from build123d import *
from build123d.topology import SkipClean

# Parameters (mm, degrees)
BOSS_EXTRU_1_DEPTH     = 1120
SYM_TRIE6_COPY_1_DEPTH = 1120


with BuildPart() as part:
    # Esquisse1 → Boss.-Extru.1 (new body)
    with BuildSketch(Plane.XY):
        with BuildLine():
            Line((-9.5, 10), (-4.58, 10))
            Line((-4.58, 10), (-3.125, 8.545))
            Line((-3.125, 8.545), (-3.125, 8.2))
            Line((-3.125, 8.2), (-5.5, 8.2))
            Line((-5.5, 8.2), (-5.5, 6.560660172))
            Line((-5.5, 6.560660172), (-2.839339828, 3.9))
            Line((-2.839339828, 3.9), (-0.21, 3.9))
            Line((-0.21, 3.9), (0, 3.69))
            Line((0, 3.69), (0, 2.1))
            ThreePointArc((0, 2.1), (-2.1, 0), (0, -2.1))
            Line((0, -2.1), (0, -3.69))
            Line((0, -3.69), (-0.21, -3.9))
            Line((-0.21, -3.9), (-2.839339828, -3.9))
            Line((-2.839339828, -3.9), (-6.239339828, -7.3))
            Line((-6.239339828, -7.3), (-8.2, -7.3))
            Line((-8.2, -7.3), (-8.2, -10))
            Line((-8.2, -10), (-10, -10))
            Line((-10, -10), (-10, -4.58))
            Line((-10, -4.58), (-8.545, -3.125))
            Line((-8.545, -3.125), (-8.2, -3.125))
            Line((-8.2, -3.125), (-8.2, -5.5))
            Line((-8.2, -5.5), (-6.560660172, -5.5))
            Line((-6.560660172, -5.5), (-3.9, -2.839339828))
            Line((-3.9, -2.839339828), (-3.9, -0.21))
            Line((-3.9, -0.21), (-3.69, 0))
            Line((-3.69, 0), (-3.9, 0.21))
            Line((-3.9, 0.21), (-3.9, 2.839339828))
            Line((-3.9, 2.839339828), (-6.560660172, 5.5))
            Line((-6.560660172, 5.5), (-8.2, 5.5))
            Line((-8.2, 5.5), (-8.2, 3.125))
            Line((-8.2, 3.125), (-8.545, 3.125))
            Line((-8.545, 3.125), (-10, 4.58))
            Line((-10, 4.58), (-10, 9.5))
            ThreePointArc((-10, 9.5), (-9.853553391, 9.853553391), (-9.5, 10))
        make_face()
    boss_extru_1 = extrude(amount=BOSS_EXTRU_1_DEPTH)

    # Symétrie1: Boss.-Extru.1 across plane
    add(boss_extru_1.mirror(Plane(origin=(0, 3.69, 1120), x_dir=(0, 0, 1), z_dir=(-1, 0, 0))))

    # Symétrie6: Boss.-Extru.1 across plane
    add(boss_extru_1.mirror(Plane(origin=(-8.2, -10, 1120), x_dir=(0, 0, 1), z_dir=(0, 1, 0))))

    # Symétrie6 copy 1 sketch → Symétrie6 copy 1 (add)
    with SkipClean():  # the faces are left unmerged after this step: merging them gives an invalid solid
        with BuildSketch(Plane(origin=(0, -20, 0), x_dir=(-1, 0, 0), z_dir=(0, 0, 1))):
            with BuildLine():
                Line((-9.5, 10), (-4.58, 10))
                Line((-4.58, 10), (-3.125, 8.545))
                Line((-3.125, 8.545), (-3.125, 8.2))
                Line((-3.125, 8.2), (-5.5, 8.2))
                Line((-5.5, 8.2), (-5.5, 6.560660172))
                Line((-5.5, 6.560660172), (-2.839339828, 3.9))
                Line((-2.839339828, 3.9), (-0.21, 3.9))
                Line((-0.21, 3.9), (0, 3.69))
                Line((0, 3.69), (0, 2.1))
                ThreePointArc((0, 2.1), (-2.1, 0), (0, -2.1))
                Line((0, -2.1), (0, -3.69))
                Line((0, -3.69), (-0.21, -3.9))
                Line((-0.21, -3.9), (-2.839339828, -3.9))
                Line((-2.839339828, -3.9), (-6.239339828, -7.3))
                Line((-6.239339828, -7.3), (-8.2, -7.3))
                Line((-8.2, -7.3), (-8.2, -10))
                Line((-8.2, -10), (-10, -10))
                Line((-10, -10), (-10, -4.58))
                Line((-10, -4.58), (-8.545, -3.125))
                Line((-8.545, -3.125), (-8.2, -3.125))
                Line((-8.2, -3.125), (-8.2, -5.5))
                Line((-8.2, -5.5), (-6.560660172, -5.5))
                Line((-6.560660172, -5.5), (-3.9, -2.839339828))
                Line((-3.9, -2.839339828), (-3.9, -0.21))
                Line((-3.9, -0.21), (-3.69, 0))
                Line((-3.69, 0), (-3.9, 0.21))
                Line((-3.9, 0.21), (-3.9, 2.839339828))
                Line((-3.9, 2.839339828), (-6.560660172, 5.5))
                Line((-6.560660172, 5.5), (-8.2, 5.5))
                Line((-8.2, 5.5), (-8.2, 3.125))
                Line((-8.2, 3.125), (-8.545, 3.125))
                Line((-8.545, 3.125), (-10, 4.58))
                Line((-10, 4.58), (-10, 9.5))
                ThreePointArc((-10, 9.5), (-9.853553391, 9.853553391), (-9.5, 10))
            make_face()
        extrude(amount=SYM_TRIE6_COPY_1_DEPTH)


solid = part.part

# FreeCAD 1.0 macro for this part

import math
import FreeCAD as App
import Part
import Sketcher
from FreeCAD import Vector

doc = App.newDocument("Part")
body = doc.addObject("PartDesign::Body", "Body")

sketch1 = body.newObject("Sketcher::SketchObject", "Sketch")
sketch1.AttachmentSupport = (doc.getObject("XY_Plane"), [""])
sketch1.MapMode = "FlatFace"
sketch1.addGeometry([
    Part.LineSegment(Vector(-4.58, 10, 0), Vector(-9.5, 10, 0)),
    Part.ArcOfCircle(Part.Circle(Vector(-9.5, 9.5, 0), Vector(0, 0, 1), 0.5), math.radians(90), math.radians(180)),
    Part.LineSegment(Vector(-10, 9.5, 0), Vector(-10, 4.58, 0)),
    Part.LineSegment(Vector(-10, 4.58, 0), Vector(-8.545, 3.125, 0)),
    Part.LineSegment(Vector(-8.545, 3.125, 0), Vector(-8.2, 3.125, 0)),
    Part.LineSegment(Vector(-8.2, 3.125, 0), Vector(-8.2, 5.5, 0)),
    Part.LineSegment(Vector(-8.2, 5.5, 0), Vector(-6.56066, 5.5, 0)),
    Part.LineSegment(Vector(-6.56066, 5.5, 0), Vector(-3.9, 2.83934, 0)),
    Part.LineSegment(Vector(-3.9, 2.83934, 0), Vector(-3.9, 0.21, 0)),
    Part.LineSegment(Vector(-3.9, 0.21, 0), Vector(-3.69, 0, 0)),
    Part.LineSegment(Vector(-3.69, 0, 0), Vector(-3.9, -0.21, 0)),
    Part.LineSegment(Vector(-3.9, -0.21, 0), Vector(-3.9, -2.83934, 0)),
    Part.LineSegment(Vector(-3.9, -2.83934, 0), Vector(-6.56066, -5.5, 0)),
    Part.LineSegment(Vector(-6.56066, -5.5, 0), Vector(-8.2, -5.5, 0)),
    Part.LineSegment(Vector(-8.2, -5.5, 0), Vector(-8.2, -3.125, 0)),
    Part.LineSegment(Vector(-8.2, -3.125, 0), Vector(-8.545, -3.125, 0)),
    Part.LineSegment(Vector(-8.545, -3.125, 0), Vector(-10, -4.58, 0)),
    Part.LineSegment(Vector(-10, -4.58, 0), Vector(-10, -10, 0)),
    Part.LineSegment(Vector(-10, -10, 0), Vector(-8.2, -10, 0)),
    Part.LineSegment(Vector(-8.2, -10, 0), Vector(-8.2, -7.3, 0)),
    Part.LineSegment(Vector(-8.2, -7.3, 0), Vector(-6.23934, -7.3, 0)),
    Part.LineSegment(Vector(-6.23934, -7.3, 0), Vector(-2.83934, -3.9, 0)),
    Part.LineSegment(Vector(-2.83934, -3.9, 0), Vector(-0.21, -3.9, 0)),
    Part.LineSegment(Vector(-0.21, -3.9, 0), Vector(0, -3.69, 0)),
    Part.LineSegment(Vector(0, -3.69, 0), Vector(0, -2.1, 0)),
    Part.ArcOfCircle(Part.Circle(Vector(0, 0, 0), Vector(0, 0, 1), 2.1), math.radians(90), math.radians(270)),
    Part.LineSegment(Vector(0, 2.1, 0), Vector(0, 3.69, 0)),
    Part.LineSegment(Vector(0, 3.69, 0), Vector(-0.21, 3.9, 0)),
    Part.LineSegment(Vector(-0.21, 3.9, 0), Vector(-2.83934, 3.9, 0)),
    Part.LineSegment(Vector(-2.83934, 3.9, 0), Vector(-5.5, 6.56066, 0)),
    Part.LineSegment(Vector(-5.5, 6.56066, 0), Vector(-5.5, 8.2, 0)),
    Part.LineSegment(Vector(-5.5, 8.2, 0), Vector(-3.125, 8.2, 0)),
    Part.LineSegment(Vector(-3.125, 8.2, 0), Vector(-3.125, 8.545, 0)),
    Part.LineSegment(Vector(-3.125, 8.545, 0), Vector(-4.58, 10, 0)),
], False)
sketch1.addConstraint([
    Sketcher.Constraint("Tangent", 0, 2, 1, 1),
    Sketcher.Constraint("Tangent", 1, 2, 2, 1),
    Sketcher.Constraint("Coincident", 2, 2, 3, 1),
    Sketcher.Constraint("Coincident", 3, 2, 4, 1),
    Sketcher.Constraint("Coincident", 4, 2, 5, 1),
    Sketcher.Constraint("Coincident", 5, 2, 6, 1),
    Sketcher.Constraint("Coincident", 6, 2, 7, 1),
    Sketcher.Constraint("Coincident", 7, 2, 8, 1),
    Sketcher.Constraint("Coincident", 8, 2, 9, 1),
    Sketcher.Constraint("Coincident", 9, 2, 10, 1),
    Sketcher.Constraint("Coincident", 10, 2, 11, 1),
    Sketcher.Constraint("Coincident", 11, 2, 12, 1),
    Sketcher.Constraint("Coincident", 12, 2, 13, 1),
    Sketcher.Constraint("Coincident", 13, 2, 14, 1),
    Sketcher.Constraint("Coincident", 14, 2, 15, 1),
    Sketcher.Constraint("Coincident", 15, 2, 16, 1),
    Sketcher.Constraint("Coincident", 16, 2, 17, 1),
    Sketcher.Constraint("Coincident", 17, 2, 18, 1),
    Sketcher.Constraint("Coincident", 18, 2, 19, 1),
    Sketcher.Constraint("Coincident", 19, 2, 20, 1),
    Sketcher.Constraint("Coincident", 20, 2, 21, 1),
    Sketcher.Constraint("Coincident", 21, 2, 22, 1),
    Sketcher.Constraint("Coincident", 22, 2, 23, 1),
    Sketcher.Constraint("Coincident", 23, 2, 24, 1),
    Sketcher.Constraint("Coincident", 24, 2, 25, 2),
    Sketcher.Constraint("Coincident", 25, 1, 26, 1),
    Sketcher.Constraint("Coincident", 26, 2, 27, 1),
    Sketcher.Constraint("Coincident", 27, 2, 28, 1),
    Sketcher.Constraint("Coincident", 28, 2, 29, 1),
    Sketcher.Constraint("Coincident", 29, 2, 30, 1),
    Sketcher.Constraint("Coincident", 30, 2, 31, 1),
    Sketcher.Constraint("Coincident", 31, 2, 32, 1),
    Sketcher.Constraint("Coincident", 32, 2, 33, 1),
    Sketcher.Constraint("Coincident", 33, 2, 0, 1),
    Sketcher.Constraint("Horizontal", 0),
    Sketcher.Constraint("Vertical", 2),
    Sketcher.Constraint("Horizontal", 4),
    Sketcher.Constraint("Vertical", 5),
    Sketcher.Constraint("Horizontal", 6),
    Sketcher.Constraint("Vertical", 8),
    Sketcher.Constraint("Vertical", 11),
    Sketcher.Constraint("Horizontal", 13),
    Sketcher.Constraint("Vertical", 14),
    Sketcher.Constraint("Horizontal", 15),
    Sketcher.Constraint("Vertical", 17),
    Sketcher.Constraint("Horizontal", 18),
    Sketcher.Constraint("Vertical", 19),
    Sketcher.Constraint("Horizontal", 20),
    Sketcher.Constraint("Horizontal", 22),
    Sketcher.Constraint("Vertical", 24),
    Sketcher.Constraint("Vertical", 26),
    Sketcher.Constraint("Horizontal", 28),
    Sketcher.Constraint("Vertical", 30),
    Sketcher.Constraint("Horizontal", 31),
    Sketcher.Constraint("Vertical", 32),
    Sketcher.Constraint("Coincident", 25, 3, -1, 1),
    Sketcher.Constraint("Symmetric", 23, 2, 26, 2, -1, 1),
    Sketcher.Constraint("Symmetric", 8, 2, 10, 2, -1),
    Sketcher.Constraint("Symmetric", 6, 2, 12, 2, -1),
    Sketcher.Constraint("Symmetric", 4, 2, 14, 2, -1),
    Sketcher.Constraint("Symmetric", 2, 2, 16, 2, -1),
    Sketcher.Constraint("Symmetric", 22, 2, 27, 2, -1),
    Sketcher.Constraint("PointOnObject", 9, 2, -1),
    Sketcher.Constraint("PointOnObject", 23, 2, -2),
    Sketcher.Constraint("Parallel", 3, 7),
    Sketcher.Constraint("Parallel", 7, 9),
    Sketcher.Constraint("Perpendicular", 9, 10),
    Sketcher.Constraint("Parallel", 10, 12),
    Sketcher.Constraint("Parallel", 12, 16),
    Sketcher.Constraint("Parallel", 16, 21),
    Sketcher.Constraint("Parallel", 21, 23),
    Sketcher.Constraint("Parallel", 27, 29),
    Sketcher.Constraint("Parallel", 29, 33),
    Sketcher.Constraint("Vertical", 14, 2, 18, 2),
    Sketcher.Constraint("Vertical", 21, 2, 28, 2),
    Sketcher.Constraint("Equal", 0, 2),
    Sketcher.Constraint("Equal", 31, 5),
    Sketcher.Constraint("Equal", 28, 8),
    Sketcher.Constraint("Equal", 13, 30),
    Sketcher.Constraint("Equal", 15, 32),
    Sketcher.Constraint("Equal", 10, 23),
    Sketcher.Constraint("Equal", 12, 29),
    Sketcher.Constraint("Equal", 16, 33),
    Sketcher.Constraint("Radius", 1, 0.5),
    Sketcher.Constraint("Radius", 25, 2.1),
    Sketcher.Constraint("DistanceX", 18, 1, 18, 2, 1.8),
    Sketcher.Constraint("DistanceY", 19, 1, 19, 2, 2.7),
    Sketcher.Constraint("DistanceY", -1, 1, 0, 2, 10.0),
    Sketcher.Constraint("DistanceY", 17, 2, -1, 1, 10.0),
    Sketcher.Constraint("DistanceY", 5, 2, 1, 3, 4.0),
    Sketcher.Constraint("DistanceX", 0, 2, 0, 1, 4.92),
    Sketcher.Constraint("DistanceY", 24, 1, 24, 2, 1.59),
    Sketcher.Constraint("DistanceX", 7, 2, -1, 1, 3.9),
    Sketcher.Constraint("DistanceX", 4, 1, 4, 2, 0.345),
    Sketcher.Constraint("DistanceX", 6, 1, 6, 2, 1.63934),
])
pad1 = body.newObject("PartDesign::Pad", "Pad")
pad1.Profile = sketch1
pad1.Length = 1120
doc.recompute()

mirrored = body.newObject("PartDesign::Mirrored", "Mirrored")
mirrored.Originals = [pad1]
mirrored.MirrorPlane = (doc.getObject("YZ_Plane"), [""])
body.Tip = mirrored
doc.recompute()

datumplane = body.newObject("PartDesign::Plane", "DatumPlane")
datumplane.AttachmentSupport = (doc.getObject("XZ_Plane"), [""])
datumplane.MapMode = "FlatFace"
datumplane.AttachmentOffset = App.Placement(Vector(0, 0, 10), App.Rotation())
mirrored2 = body.newObject("PartDesign::Mirrored", "Mirrored001")
mirrored2.Originals = [pad1]
mirrored2.MirrorPlane = (datumplane, [""])
body.Tip = mirrored2

sketch2 = body.newObject("Sketcher::SketchObject", "Sketch001")
sketch2.AttachmentSupport = (doc.getObject("XY_Plane"), [""])
sketch2.MapMode = "FlatFace"
sketch2.addGeometry([
    Part.LineSegment(Vector(4.58, -30, 0), Vector(9.5, -30, 0)),
    Part.ArcOfCircle(Part.Circle(Vector(9.5, -29.5, 0), Vector(0, 0, 1), 0.5), math.radians(-90), math.radians(0)),
    Part.LineSegment(Vector(10, -29.5, 0), Vector(10, -24.58, 0)),
    Part.LineSegment(Vector(10, -24.58, 0), Vector(8.545, -23.125, 0)),
    Part.LineSegment(Vector(8.545, -23.125, 0), Vector(8.2, -23.125, 0)),
    Part.LineSegment(Vector(8.2, -23.125, 0), Vector(8.2, -25.5, 0)),
    Part.LineSegment(Vector(8.2, -25.5, 0), Vector(6.56066, -25.5, 0)),
    Part.LineSegment(Vector(6.56066, -25.5, 0), Vector(3.9, -22.83934, 0)),
    Part.LineSegment(Vector(3.9, -22.83934, 0), Vector(3.9, -20.21, 0)),
    Part.LineSegment(Vector(3.9, -20.21, 0), Vector(3.69, -20, 0)),
    Part.LineSegment(Vector(3.69, -20, 0), Vector(3.9, -19.79, 0)),
    Part.LineSegment(Vector(3.9, -19.79, 0), Vector(3.9, -17.16066, 0)),
    Part.LineSegment(Vector(3.9, -17.16066, 0), Vector(6.56066, -14.5, 0)),
    Part.LineSegment(Vector(6.56066, -14.5, 0), Vector(8.2, -14.5, 0)),
    Part.LineSegment(Vector(8.2, -14.5, 0), Vector(8.2, -16.875, 0)),
    Part.LineSegment(Vector(8.2, -16.875, 0), Vector(8.545, -16.875, 0)),
    Part.LineSegment(Vector(8.545, -16.875, 0), Vector(10, -15.42, 0)),
    Part.LineSegment(Vector(10, -15.42, 0), Vector(10, -10, 0)),
    Part.LineSegment(Vector(10, -10, 0), Vector(8.2, -10, 0)),
    Part.LineSegment(Vector(8.2, -10, 0), Vector(8.2, -12.7, 0)),
    Part.LineSegment(Vector(8.2, -12.7, 0), Vector(6.23934, -12.7, 0)),
    Part.LineSegment(Vector(6.23934, -12.7, 0), Vector(2.83934, -16.1, 0)),
    Part.LineSegment(Vector(2.83934, -16.1, 0), Vector(0.21, -16.1, 0)),
    Part.LineSegment(Vector(0.21, -16.1, 0), Vector(0, -16.31, 0)),
    Part.LineSegment(Vector(0, -16.31, 0), Vector(0, -17.9, 0)),
    Part.ArcOfCircle(Part.Circle(Vector(0, -20, 0), Vector(0, 0, 1), 2.1), math.radians(-90), math.radians(90)),
    Part.LineSegment(Vector(0, -22.1, 0), Vector(0, -23.69, 0)),
    Part.LineSegment(Vector(0, -23.69, 0), Vector(0.21, -23.9, 0)),
    Part.LineSegment(Vector(0.21, -23.9, 0), Vector(2.83934, -23.9, 0)),
    Part.LineSegment(Vector(2.83934, -23.9, 0), Vector(5.5, -26.56066, 0)),
    Part.LineSegment(Vector(5.5, -26.56066, 0), Vector(5.5, -28.2, 0)),
    Part.LineSegment(Vector(5.5, -28.2, 0), Vector(3.125, -28.2, 0)),
    Part.LineSegment(Vector(3.125, -28.2, 0), Vector(3.125, -28.545, 0)),
    Part.LineSegment(Vector(3.125, -28.545, 0), Vector(4.58, -30, 0)),
], False)
sketch2.addConstraint([
    Sketcher.Constraint("Tangent", 0, 2, 1, 1),
    Sketcher.Constraint("Tangent", 1, 2, 2, 1),
    Sketcher.Constraint("Coincident", 2, 2, 3, 1),
    Sketcher.Constraint("Coincident", 3, 2, 4, 1),
    Sketcher.Constraint("Coincident", 4, 2, 5, 1),
    Sketcher.Constraint("Coincident", 5, 2, 6, 1),
    Sketcher.Constraint("Coincident", 6, 2, 7, 1),
    Sketcher.Constraint("Coincident", 7, 2, 8, 1),
    Sketcher.Constraint("Coincident", 8, 2, 9, 1),
    Sketcher.Constraint("Coincident", 9, 2, 10, 1),
    Sketcher.Constraint("Coincident", 10, 2, 11, 1),
    Sketcher.Constraint("Coincident", 11, 2, 12, 1),
    Sketcher.Constraint("Coincident", 12, 2, 13, 1),
    Sketcher.Constraint("Coincident", 13, 2, 14, 1),
    Sketcher.Constraint("Coincident", 14, 2, 15, 1),
    Sketcher.Constraint("Coincident", 15, 2, 16, 1),
    Sketcher.Constraint("Coincident", 16, 2, 17, 1),
    Sketcher.Constraint("Coincident", 17, 2, 18, 1),
    Sketcher.Constraint("Coincident", 18, 2, 19, 1),
    Sketcher.Constraint("Coincident", 19, 2, 20, 1),
    Sketcher.Constraint("Coincident", 20, 2, 21, 1),
    Sketcher.Constraint("Coincident", 21, 2, 22, 1),
    Sketcher.Constraint("Coincident", 22, 2, 23, 1),
    Sketcher.Constraint("Coincident", 23, 2, 24, 1),
    Sketcher.Constraint("Coincident", 24, 2, 25, 2),
    Sketcher.Constraint("Coincident", 25, 1, 26, 1),
    Sketcher.Constraint("Coincident", 26, 2, 27, 1),
    Sketcher.Constraint("Coincident", 27, 2, 28, 1),
    Sketcher.Constraint("Coincident", 28, 2, 29, 1),
    Sketcher.Constraint("Coincident", 29, 2, 30, 1),
    Sketcher.Constraint("Coincident", 30, 2, 31, 1),
    Sketcher.Constraint("Coincident", 31, 2, 32, 1),
    Sketcher.Constraint("Coincident", 32, 2, 33, 1),
    Sketcher.Constraint("Coincident", 33, 2, 0, 1),
    Sketcher.Constraint("Horizontal", 0),
    Sketcher.Constraint("Vertical", 2),
    Sketcher.Constraint("Horizontal", 4),
    Sketcher.Constraint("Vertical", 5),
    Sketcher.Constraint("Horizontal", 6),
    Sketcher.Constraint("Vertical", 8),
    Sketcher.Constraint("Vertical", 11),
    Sketcher.Constraint("Horizontal", 13),
    Sketcher.Constraint("Vertical", 14),
    Sketcher.Constraint("Horizontal", 15),
    Sketcher.Constraint("Vertical", 17),
    Sketcher.Constraint("Horizontal", 18),
    Sketcher.Constraint("Vertical", 19),
    Sketcher.Constraint("Horizontal", 20),
    Sketcher.Constraint("Horizontal", 22),
    Sketcher.Constraint("Vertical", 24),
    Sketcher.Constraint("Vertical", 26),
    Sketcher.Constraint("Horizontal", 28),
    Sketcher.Constraint("Vertical", 30),
    Sketcher.Constraint("Horizontal", 31),
    Sketcher.Constraint("Vertical", 32),
    Sketcher.Constraint("PointOnObject", 25, 3, -2),
    Sketcher.Constraint("PointOnObject", 23, 2, -2),
    Sketcher.Constraint("PointOnObject", 25, 1, -2),
    Sketcher.Constraint("Parallel", 3, 7),
    Sketcher.Constraint("Parallel", 7, 9),
    Sketcher.Constraint("Perpendicular", 9, 10),
    Sketcher.Constraint("Parallel", 10, 12),
    Sketcher.Constraint("Parallel", 12, 16),
    Sketcher.Constraint("Parallel", 16, 21),
    Sketcher.Constraint("Parallel", 21, 23),
    Sketcher.Constraint("Perpendicular", 23, 27),
    Sketcher.Constraint("Parallel", 27, 29),
    Sketcher.Constraint("Parallel", 29, 33),
    Sketcher.Constraint("Horizontal", 25, 3, 9, 2),
    Sketcher.Constraint("Vertical", 8, 2, 10, 2),
    Sketcher.Constraint("Vertical", 6, 2, 12, 2),
    Sketcher.Constraint("Vertical", 5, 2, 13, 2),
    Sketcher.Constraint("Vertical", 3, 2, 15, 2),
    Sketcher.Constraint("Vertical", 2, 2, 16, 2),
    Sketcher.Constraint("Vertical", 14, 2, 18, 2),
    Sketcher.Constraint("Vertical", 22, 2, 27, 2),
    Sketcher.Constraint("Vertical", 21, 2, 28, 2),
    Sketcher.Constraint("Equal", 0, 2),
    Sketcher.Constraint("Equal", 31, 5),
    Sketcher.Constraint("Equal", 28, 8),
    Sketcher.Constraint("Equal", 8, 11),
    Sketcher.Constraint("Equal", 5, 14),
    Sketcher.Constraint("Equal", 24, 26),
    Sketcher.Constraint("Equal", 13, 30),
    Sketcher.Constraint("Equal", 15, 32),
    Sketcher.Constraint("Equal", 9, 10),
    Sketcher.Constraint("Equal", 10, 23),
    Sketcher.Constraint("Equal", 12, 29),
    Sketcher.Constraint("Equal", 16, 33),
    Sketcher.Constraint("Radius", 1, 0.5),
    Sketcher.Constraint("Radius", 25, 2.1),
    Sketcher.Constraint("DistanceX", 18, 2, 18, 1, 1.8),
    Sketcher.Constraint("DistanceY", 19, 2, 19, 1, 2.7),
    Sketcher.Constraint("DistanceY", 25, 3, -1, 1, 20.0),
    Sketcher.Constraint("DistanceY", 0, 2, -1, 1, 30.0),
    Sketcher.Constraint("DistanceY", 17, 2, -1, 1, 10.0),
    Sketcher.Constraint("DistanceY", 1, 3, 5, 2, 4.0),
    Sketcher.Constraint("DistanceX", 0, 1, 0, 2, 4.92),
    Sketcher.Constraint("DistanceY", 24, 2, 24, 1, 1.59),
    Sketcher.Constraint("DistanceX", -1, 1, 7, 2, 3.9),
    Sketcher.Constraint("DistanceX", 4, 2, 4, 1, 0.345),
    Sketcher.Constraint("DistanceX", 6, 2, 6, 1, 1.63934),
])
pad2 = body.newObject("PartDesign::Pad", "Pad001")
pad2.Profile = sketch2
pad2.Length = 1120

doc.recompute()
